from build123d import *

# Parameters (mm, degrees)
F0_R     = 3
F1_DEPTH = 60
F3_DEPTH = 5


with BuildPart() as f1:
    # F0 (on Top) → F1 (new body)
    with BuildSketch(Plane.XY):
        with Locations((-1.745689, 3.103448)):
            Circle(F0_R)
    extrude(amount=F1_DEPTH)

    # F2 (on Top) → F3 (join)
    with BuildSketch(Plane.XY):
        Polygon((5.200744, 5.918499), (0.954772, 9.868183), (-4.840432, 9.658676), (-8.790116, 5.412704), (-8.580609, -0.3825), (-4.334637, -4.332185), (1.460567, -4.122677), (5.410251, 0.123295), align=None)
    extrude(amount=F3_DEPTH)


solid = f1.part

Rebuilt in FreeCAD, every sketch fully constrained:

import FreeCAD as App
import Part
import Sketcher

V = App.Vector


def add_polygon(sketch, points):
    """Adds a closed chain of lines whose ends are joined by coincident constraints."""
    first, n = sketch.GeometryCount, len(points)
    for a, b in zip(points, points[1:] + points[:1]):
        sketch.addGeometry(Part.LineSegment(App.Vector(*a, 0), App.Vector(*b, 0)), False)
    for i in range(n):
        sketch.addConstraint(Sketcher.Constraint("Coincident", first + i, 2, first + (i + 1) % n, 1))

doc = App.newDocument("Part")
body = doc.addObject("PartDesign::Body", "Body")

# Sketch on XY plane
sketch1 = doc.addObject("Sketcher::SketchObject", "Sketch")
body.addObject(sketch1)
sketch1.AttachmentSupport = (doc.XY_Plane, [""])
sketch1.MapMode = "FlatFace"
sketch1.addGeometry(Part.Circle(V(-1.7, 3.1, 0), V(0, 0, 1), 3), False)
sketch1.addConstraint(Sketcher.Constraint("Diameter", 0, 6.0))
sketch1.addConstraint(Sketcher.Constraint("DistanceX", 0, 3, -1, 1, 1.745689))
sketch1.addConstraint(Sketcher.Constraint("DistanceY", -1, 1, 0, 3, 3.103448))
pad1 = doc.addObject("PartDesign::Pad", "Pad")
body.addObject(pad1)
pad1.Profile = sketch1
pad1.Length = 60

# Sketch on XY plane
sketch2 = doc.addObject("Sketcher::SketchObject", "Sketch001")
body.addObject(sketch2)
sketch2.AttachmentSupport = (doc.XY_Plane, [""])
sketch2.MapMode = "FlatFace"
add_polygon(sketch2, [(5, 6), (1, 10), (-5, 10), (-9, 5), (-9, 0), (-4, -4), (1, -4), (5, 0)])  # lines 0-7
sketch2.addConstraint(Sketcher.Constraint("Perpendicular", 0, 2))
sketch2.addConstraint(Sketcher.Constraint("Perpendicular", 1, 3))
sketch2.addConstraint(Sketcher.Constraint("Perpendicular", 2, 4))
sketch2.addConstraint(Sketcher.Constraint("Perpendicular", 3, 5))
sketch2.addConstraint(Sketcher.Constraint("Perpendicular", 4, 6))
sketch2.addConstraint(Sketcher.Constraint("Perpendicular", 5, 7))
sketch2.addConstraint(Sketcher.Constraint("Equal", 0, 1))
sketch2.addConstraint(Sketcher.Constraint("Equal", 1, 2))
sketch2.addConstraint(Sketcher.Constraint("Equal", 2, 3))
sketch2.addConstraint(Sketcher.Constraint("Equal", 3, 4))
sketch2.addConstraint(Sketcher.Constraint("Equal", 4, 5))
sketch2.addConstraint(Sketcher.Constraint("DistanceX", 1, 2, 5, 2, 6.300999))
sketch2.addConstraint(Sketcher.Constraint("DistanceY", 3, 2, -1, 1, 0.3825))
sketch2.addConstraint(Sketcher.Constraint("Distance", 0, 5.79899))
sketch2.addConstraint(Sketcher.Constraint("DistanceX", -1, 1, 0, 2, 0.954772))
sketch2.addConstraint(Sketcher.Constraint("DistanceX", 3, 2, -1, 1, 8.580609))
pad2 = doc.addObject("PartDesign::Pad", "Pad001")
body.addObject(pad2)
pad2.Profile = sketch2
pad2.Length = 5

doc.recompute()
